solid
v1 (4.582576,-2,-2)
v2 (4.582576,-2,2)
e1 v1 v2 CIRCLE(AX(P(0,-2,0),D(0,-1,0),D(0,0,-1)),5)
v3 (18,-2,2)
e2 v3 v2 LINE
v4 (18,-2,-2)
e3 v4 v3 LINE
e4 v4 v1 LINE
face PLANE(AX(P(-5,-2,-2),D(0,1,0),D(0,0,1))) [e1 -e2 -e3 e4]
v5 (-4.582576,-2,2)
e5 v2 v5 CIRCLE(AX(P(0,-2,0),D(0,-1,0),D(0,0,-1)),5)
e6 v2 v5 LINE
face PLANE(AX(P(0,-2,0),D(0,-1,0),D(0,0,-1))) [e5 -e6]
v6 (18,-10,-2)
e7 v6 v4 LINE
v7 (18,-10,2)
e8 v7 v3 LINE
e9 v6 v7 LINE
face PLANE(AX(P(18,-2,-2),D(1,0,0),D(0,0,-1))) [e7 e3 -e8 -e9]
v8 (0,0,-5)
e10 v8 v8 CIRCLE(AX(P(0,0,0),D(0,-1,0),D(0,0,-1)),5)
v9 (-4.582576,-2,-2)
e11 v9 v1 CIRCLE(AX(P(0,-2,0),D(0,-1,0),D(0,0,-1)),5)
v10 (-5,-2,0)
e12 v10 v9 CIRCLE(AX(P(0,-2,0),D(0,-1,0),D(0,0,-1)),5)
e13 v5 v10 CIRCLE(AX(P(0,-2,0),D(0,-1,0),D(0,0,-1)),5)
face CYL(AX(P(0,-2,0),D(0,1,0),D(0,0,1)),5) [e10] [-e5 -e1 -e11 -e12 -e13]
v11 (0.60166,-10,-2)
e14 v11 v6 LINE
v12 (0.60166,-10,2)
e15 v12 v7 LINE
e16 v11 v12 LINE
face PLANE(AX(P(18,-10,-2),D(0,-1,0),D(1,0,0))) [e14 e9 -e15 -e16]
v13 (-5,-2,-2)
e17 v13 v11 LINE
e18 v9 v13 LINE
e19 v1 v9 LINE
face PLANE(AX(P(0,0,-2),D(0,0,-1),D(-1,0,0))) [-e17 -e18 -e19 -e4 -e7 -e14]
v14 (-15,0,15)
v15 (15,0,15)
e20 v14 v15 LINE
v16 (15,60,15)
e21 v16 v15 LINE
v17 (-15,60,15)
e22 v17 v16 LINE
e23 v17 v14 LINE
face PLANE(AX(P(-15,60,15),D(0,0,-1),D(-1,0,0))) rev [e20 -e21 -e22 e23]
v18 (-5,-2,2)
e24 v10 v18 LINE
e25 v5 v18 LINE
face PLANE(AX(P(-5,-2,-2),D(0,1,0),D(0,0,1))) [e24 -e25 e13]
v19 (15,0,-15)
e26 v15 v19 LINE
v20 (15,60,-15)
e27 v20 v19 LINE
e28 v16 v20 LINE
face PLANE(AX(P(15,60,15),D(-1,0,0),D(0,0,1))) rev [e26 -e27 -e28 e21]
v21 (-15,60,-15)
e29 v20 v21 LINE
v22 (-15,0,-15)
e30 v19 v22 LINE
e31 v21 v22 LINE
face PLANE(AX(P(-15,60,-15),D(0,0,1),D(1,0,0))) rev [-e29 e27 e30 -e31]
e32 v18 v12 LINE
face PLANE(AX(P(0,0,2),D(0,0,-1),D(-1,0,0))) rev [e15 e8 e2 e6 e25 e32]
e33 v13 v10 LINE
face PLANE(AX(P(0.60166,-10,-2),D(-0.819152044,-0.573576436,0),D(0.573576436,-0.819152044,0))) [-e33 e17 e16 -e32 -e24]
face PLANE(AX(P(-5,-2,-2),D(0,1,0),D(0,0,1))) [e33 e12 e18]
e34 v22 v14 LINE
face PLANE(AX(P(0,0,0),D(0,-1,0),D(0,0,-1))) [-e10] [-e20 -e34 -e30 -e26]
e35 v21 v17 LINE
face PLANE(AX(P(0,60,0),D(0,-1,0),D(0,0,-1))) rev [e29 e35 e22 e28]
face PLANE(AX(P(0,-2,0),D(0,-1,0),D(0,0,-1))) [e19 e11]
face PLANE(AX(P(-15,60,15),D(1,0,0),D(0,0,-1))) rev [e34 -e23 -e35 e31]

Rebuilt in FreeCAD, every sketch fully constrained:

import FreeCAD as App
import Part
import Sketcher

V = App.Vector
Q = App.Units.Quantity

doc = App.newDocument("Part")
params = doc.addObject("Spreadsheet::Sheet", "Params")
for row, (alias, value) in enumerate([
    ("sketch1_width", "30 mm"),
    ("pad1_length", "60 mm"),
    ("sketch2_diameter", "10 mm"),
    ("pad2_length", "2 mm"),
    ("sketch3_width", "23 mm"),
    ("sketch3_height", "8 mm"),
    ("pad3_length", "2 mm"),
    ("pad3_length2", "2 mm"),
], start=1):
    params.set(f"A{row}", alias)
    params.set(f"B{row}", "=" + value)
    params.setAlias(f"B{row}", alias)

body = doc.addObject("PartDesign::Body", "Body")

# Sketch on XZ plane
sketch1 = doc.addObject("Sketcher::SketchObject", "Sketch")
body.addObject(sketch1)
sketch1.AttachmentSupport = (doc.XZ_Plane, [""])
sketch1.MapMode = "FlatFace"
sketch1.addGeometry([
    Part.LineSegment(V(-15, -15, 0), V(-15, 15, 0)),
    Part.LineSegment(V(-15, 15, 0), V(15, 15, 0)),
    Part.LineSegment(V(15, 15, 0), V(15, -15, 0)),
    Part.LineSegment(V(15, -15, 0), V(-15, -15, 0)),
], False)
sketch1.addConstraint([
    Sketcher.Constraint("Coincident", 0, 2, 1, 1),
    Sketcher.Constraint("Coincident", 1, 2, 2, 1),
    Sketcher.Constraint("Coincident", 2, 2, 3, 1),
    Sketcher.Constraint("Coincident", 3, 2, 0, 1),
    Sketcher.Constraint("Vertical", 0),
    Sketcher.Constraint("Horizontal", 1),
    Sketcher.Constraint("Vertical", 2),
    Sketcher.Constraint("Horizontal", 3),
    Sketcher.Constraint("Symmetric", 0, 2, 2, 2, -1, 1),
    Sketcher.Constraint("Equal", 3, 0),
    Sketcher.Constraint("DistanceX", 1, 1, 1, 2, Q("30 mm")),
])
sketch1.setExpression("Constraints[10]", "Params.sketch1_width")
pad1 = doc.addObject("PartDesign::Pad", "Pad")
body.addObject(pad1)
pad1.Profile = sketch1
pad1.setExpression("Length", "Params.pad1_length")
pad1.Reversed = True

# Sketch on XZ plane
sketch2 = doc.addObject("Sketcher::SketchObject", "Sketch001")
body.addObject(sketch2)
sketch2.AttachmentSupport = (doc.XZ_Plane, [""])
sketch2.MapMode = "FlatFace"
sketch2.addGeometry(Part.Circle(V(0, 0, 0), V(0, 0, 1), 5), False)
sketch2.addConstraint([
    Sketcher.Constraint("Coincident", 0, 3, -1, 1),
    Sketcher.Constraint("Diameter", 0, Q("10 mm")),
])
sketch2.setExpression("Constraints[1]", "Params.sketch2_diameter")
pad2 = doc.addObject("PartDesign::Pad", "Pad001")
body.addObject(pad2)
pad2.Profile = sketch2
pad2.setExpression("Length", "Params.pad2_length")

# Sketch on XY plane
sketch3 = doc.addObject("Sketcher::SketchObject", "Sketch002")
body.addObject(sketch3)
sketch3.AttachmentSupport = (doc.XY_Plane, [""])
sketch3.MapMode = "FlatFace"
sketch3.addGeometry([
    Part.LineSegment(V(18, -2, 0), V(-5, -2, 0)),
    Part.LineSegment(V(-5, -2, 0), V(1, -10, 0)),
    Part.LineSegment(V(1, -10, 0), V(18, -10, 0)),
    Part.LineSegment(V(18, -10, 0), V(18, -2, 0)),
], False)
sketch3.addConstraint([
    Sketcher.Constraint("Coincident", 0, 2, 1, 1),
    Sketcher.Constraint("Coincident", 1, 2, 2, 1),
    Sketcher.Constraint("Coincident", 2, 2, 3, 1),
    Sketcher.Constraint("Coincident", 3, 2, 0, 1),
    Sketcher.Constraint("Horizontal", 0),
    Sketcher.Constraint("Horizontal", 2),
    Sketcher.Constraint("Vertical", 3),
    Sketcher.Constraint("DistanceX", 0, 2, 0, 1, Q("23 mm")),
    Sketcher.Constraint("DistanceY", 3, 1, 3, 2, Q("8 mm")),
    Sketcher.Constraint("Angle", 1, Q("-55 deg")),
    Sketcher.Constraint("DistanceX", 0, 2, -1, 1, Q("5 mm")),
    Sketcher.Constraint("DistanceY", 0, 2, -1, 1, Q("2 mm")),
])
sketch3.setExpression("Constraints[7]", "Params.sketch3_width")
sketch3.setExpression("Constraints[8]", "Params.sketch3_height")
pad3 = doc.addObject("PartDesign::Pad", "Pad002")
body.addObject(pad3)
pad3.Profile = sketch3
pad3.Type = "TwoLengths"
pad3.setExpression("Length", "Params.pad3_length")
pad3.setExpression("Length2", "Params.pad3_length2")

doc.recompute()
